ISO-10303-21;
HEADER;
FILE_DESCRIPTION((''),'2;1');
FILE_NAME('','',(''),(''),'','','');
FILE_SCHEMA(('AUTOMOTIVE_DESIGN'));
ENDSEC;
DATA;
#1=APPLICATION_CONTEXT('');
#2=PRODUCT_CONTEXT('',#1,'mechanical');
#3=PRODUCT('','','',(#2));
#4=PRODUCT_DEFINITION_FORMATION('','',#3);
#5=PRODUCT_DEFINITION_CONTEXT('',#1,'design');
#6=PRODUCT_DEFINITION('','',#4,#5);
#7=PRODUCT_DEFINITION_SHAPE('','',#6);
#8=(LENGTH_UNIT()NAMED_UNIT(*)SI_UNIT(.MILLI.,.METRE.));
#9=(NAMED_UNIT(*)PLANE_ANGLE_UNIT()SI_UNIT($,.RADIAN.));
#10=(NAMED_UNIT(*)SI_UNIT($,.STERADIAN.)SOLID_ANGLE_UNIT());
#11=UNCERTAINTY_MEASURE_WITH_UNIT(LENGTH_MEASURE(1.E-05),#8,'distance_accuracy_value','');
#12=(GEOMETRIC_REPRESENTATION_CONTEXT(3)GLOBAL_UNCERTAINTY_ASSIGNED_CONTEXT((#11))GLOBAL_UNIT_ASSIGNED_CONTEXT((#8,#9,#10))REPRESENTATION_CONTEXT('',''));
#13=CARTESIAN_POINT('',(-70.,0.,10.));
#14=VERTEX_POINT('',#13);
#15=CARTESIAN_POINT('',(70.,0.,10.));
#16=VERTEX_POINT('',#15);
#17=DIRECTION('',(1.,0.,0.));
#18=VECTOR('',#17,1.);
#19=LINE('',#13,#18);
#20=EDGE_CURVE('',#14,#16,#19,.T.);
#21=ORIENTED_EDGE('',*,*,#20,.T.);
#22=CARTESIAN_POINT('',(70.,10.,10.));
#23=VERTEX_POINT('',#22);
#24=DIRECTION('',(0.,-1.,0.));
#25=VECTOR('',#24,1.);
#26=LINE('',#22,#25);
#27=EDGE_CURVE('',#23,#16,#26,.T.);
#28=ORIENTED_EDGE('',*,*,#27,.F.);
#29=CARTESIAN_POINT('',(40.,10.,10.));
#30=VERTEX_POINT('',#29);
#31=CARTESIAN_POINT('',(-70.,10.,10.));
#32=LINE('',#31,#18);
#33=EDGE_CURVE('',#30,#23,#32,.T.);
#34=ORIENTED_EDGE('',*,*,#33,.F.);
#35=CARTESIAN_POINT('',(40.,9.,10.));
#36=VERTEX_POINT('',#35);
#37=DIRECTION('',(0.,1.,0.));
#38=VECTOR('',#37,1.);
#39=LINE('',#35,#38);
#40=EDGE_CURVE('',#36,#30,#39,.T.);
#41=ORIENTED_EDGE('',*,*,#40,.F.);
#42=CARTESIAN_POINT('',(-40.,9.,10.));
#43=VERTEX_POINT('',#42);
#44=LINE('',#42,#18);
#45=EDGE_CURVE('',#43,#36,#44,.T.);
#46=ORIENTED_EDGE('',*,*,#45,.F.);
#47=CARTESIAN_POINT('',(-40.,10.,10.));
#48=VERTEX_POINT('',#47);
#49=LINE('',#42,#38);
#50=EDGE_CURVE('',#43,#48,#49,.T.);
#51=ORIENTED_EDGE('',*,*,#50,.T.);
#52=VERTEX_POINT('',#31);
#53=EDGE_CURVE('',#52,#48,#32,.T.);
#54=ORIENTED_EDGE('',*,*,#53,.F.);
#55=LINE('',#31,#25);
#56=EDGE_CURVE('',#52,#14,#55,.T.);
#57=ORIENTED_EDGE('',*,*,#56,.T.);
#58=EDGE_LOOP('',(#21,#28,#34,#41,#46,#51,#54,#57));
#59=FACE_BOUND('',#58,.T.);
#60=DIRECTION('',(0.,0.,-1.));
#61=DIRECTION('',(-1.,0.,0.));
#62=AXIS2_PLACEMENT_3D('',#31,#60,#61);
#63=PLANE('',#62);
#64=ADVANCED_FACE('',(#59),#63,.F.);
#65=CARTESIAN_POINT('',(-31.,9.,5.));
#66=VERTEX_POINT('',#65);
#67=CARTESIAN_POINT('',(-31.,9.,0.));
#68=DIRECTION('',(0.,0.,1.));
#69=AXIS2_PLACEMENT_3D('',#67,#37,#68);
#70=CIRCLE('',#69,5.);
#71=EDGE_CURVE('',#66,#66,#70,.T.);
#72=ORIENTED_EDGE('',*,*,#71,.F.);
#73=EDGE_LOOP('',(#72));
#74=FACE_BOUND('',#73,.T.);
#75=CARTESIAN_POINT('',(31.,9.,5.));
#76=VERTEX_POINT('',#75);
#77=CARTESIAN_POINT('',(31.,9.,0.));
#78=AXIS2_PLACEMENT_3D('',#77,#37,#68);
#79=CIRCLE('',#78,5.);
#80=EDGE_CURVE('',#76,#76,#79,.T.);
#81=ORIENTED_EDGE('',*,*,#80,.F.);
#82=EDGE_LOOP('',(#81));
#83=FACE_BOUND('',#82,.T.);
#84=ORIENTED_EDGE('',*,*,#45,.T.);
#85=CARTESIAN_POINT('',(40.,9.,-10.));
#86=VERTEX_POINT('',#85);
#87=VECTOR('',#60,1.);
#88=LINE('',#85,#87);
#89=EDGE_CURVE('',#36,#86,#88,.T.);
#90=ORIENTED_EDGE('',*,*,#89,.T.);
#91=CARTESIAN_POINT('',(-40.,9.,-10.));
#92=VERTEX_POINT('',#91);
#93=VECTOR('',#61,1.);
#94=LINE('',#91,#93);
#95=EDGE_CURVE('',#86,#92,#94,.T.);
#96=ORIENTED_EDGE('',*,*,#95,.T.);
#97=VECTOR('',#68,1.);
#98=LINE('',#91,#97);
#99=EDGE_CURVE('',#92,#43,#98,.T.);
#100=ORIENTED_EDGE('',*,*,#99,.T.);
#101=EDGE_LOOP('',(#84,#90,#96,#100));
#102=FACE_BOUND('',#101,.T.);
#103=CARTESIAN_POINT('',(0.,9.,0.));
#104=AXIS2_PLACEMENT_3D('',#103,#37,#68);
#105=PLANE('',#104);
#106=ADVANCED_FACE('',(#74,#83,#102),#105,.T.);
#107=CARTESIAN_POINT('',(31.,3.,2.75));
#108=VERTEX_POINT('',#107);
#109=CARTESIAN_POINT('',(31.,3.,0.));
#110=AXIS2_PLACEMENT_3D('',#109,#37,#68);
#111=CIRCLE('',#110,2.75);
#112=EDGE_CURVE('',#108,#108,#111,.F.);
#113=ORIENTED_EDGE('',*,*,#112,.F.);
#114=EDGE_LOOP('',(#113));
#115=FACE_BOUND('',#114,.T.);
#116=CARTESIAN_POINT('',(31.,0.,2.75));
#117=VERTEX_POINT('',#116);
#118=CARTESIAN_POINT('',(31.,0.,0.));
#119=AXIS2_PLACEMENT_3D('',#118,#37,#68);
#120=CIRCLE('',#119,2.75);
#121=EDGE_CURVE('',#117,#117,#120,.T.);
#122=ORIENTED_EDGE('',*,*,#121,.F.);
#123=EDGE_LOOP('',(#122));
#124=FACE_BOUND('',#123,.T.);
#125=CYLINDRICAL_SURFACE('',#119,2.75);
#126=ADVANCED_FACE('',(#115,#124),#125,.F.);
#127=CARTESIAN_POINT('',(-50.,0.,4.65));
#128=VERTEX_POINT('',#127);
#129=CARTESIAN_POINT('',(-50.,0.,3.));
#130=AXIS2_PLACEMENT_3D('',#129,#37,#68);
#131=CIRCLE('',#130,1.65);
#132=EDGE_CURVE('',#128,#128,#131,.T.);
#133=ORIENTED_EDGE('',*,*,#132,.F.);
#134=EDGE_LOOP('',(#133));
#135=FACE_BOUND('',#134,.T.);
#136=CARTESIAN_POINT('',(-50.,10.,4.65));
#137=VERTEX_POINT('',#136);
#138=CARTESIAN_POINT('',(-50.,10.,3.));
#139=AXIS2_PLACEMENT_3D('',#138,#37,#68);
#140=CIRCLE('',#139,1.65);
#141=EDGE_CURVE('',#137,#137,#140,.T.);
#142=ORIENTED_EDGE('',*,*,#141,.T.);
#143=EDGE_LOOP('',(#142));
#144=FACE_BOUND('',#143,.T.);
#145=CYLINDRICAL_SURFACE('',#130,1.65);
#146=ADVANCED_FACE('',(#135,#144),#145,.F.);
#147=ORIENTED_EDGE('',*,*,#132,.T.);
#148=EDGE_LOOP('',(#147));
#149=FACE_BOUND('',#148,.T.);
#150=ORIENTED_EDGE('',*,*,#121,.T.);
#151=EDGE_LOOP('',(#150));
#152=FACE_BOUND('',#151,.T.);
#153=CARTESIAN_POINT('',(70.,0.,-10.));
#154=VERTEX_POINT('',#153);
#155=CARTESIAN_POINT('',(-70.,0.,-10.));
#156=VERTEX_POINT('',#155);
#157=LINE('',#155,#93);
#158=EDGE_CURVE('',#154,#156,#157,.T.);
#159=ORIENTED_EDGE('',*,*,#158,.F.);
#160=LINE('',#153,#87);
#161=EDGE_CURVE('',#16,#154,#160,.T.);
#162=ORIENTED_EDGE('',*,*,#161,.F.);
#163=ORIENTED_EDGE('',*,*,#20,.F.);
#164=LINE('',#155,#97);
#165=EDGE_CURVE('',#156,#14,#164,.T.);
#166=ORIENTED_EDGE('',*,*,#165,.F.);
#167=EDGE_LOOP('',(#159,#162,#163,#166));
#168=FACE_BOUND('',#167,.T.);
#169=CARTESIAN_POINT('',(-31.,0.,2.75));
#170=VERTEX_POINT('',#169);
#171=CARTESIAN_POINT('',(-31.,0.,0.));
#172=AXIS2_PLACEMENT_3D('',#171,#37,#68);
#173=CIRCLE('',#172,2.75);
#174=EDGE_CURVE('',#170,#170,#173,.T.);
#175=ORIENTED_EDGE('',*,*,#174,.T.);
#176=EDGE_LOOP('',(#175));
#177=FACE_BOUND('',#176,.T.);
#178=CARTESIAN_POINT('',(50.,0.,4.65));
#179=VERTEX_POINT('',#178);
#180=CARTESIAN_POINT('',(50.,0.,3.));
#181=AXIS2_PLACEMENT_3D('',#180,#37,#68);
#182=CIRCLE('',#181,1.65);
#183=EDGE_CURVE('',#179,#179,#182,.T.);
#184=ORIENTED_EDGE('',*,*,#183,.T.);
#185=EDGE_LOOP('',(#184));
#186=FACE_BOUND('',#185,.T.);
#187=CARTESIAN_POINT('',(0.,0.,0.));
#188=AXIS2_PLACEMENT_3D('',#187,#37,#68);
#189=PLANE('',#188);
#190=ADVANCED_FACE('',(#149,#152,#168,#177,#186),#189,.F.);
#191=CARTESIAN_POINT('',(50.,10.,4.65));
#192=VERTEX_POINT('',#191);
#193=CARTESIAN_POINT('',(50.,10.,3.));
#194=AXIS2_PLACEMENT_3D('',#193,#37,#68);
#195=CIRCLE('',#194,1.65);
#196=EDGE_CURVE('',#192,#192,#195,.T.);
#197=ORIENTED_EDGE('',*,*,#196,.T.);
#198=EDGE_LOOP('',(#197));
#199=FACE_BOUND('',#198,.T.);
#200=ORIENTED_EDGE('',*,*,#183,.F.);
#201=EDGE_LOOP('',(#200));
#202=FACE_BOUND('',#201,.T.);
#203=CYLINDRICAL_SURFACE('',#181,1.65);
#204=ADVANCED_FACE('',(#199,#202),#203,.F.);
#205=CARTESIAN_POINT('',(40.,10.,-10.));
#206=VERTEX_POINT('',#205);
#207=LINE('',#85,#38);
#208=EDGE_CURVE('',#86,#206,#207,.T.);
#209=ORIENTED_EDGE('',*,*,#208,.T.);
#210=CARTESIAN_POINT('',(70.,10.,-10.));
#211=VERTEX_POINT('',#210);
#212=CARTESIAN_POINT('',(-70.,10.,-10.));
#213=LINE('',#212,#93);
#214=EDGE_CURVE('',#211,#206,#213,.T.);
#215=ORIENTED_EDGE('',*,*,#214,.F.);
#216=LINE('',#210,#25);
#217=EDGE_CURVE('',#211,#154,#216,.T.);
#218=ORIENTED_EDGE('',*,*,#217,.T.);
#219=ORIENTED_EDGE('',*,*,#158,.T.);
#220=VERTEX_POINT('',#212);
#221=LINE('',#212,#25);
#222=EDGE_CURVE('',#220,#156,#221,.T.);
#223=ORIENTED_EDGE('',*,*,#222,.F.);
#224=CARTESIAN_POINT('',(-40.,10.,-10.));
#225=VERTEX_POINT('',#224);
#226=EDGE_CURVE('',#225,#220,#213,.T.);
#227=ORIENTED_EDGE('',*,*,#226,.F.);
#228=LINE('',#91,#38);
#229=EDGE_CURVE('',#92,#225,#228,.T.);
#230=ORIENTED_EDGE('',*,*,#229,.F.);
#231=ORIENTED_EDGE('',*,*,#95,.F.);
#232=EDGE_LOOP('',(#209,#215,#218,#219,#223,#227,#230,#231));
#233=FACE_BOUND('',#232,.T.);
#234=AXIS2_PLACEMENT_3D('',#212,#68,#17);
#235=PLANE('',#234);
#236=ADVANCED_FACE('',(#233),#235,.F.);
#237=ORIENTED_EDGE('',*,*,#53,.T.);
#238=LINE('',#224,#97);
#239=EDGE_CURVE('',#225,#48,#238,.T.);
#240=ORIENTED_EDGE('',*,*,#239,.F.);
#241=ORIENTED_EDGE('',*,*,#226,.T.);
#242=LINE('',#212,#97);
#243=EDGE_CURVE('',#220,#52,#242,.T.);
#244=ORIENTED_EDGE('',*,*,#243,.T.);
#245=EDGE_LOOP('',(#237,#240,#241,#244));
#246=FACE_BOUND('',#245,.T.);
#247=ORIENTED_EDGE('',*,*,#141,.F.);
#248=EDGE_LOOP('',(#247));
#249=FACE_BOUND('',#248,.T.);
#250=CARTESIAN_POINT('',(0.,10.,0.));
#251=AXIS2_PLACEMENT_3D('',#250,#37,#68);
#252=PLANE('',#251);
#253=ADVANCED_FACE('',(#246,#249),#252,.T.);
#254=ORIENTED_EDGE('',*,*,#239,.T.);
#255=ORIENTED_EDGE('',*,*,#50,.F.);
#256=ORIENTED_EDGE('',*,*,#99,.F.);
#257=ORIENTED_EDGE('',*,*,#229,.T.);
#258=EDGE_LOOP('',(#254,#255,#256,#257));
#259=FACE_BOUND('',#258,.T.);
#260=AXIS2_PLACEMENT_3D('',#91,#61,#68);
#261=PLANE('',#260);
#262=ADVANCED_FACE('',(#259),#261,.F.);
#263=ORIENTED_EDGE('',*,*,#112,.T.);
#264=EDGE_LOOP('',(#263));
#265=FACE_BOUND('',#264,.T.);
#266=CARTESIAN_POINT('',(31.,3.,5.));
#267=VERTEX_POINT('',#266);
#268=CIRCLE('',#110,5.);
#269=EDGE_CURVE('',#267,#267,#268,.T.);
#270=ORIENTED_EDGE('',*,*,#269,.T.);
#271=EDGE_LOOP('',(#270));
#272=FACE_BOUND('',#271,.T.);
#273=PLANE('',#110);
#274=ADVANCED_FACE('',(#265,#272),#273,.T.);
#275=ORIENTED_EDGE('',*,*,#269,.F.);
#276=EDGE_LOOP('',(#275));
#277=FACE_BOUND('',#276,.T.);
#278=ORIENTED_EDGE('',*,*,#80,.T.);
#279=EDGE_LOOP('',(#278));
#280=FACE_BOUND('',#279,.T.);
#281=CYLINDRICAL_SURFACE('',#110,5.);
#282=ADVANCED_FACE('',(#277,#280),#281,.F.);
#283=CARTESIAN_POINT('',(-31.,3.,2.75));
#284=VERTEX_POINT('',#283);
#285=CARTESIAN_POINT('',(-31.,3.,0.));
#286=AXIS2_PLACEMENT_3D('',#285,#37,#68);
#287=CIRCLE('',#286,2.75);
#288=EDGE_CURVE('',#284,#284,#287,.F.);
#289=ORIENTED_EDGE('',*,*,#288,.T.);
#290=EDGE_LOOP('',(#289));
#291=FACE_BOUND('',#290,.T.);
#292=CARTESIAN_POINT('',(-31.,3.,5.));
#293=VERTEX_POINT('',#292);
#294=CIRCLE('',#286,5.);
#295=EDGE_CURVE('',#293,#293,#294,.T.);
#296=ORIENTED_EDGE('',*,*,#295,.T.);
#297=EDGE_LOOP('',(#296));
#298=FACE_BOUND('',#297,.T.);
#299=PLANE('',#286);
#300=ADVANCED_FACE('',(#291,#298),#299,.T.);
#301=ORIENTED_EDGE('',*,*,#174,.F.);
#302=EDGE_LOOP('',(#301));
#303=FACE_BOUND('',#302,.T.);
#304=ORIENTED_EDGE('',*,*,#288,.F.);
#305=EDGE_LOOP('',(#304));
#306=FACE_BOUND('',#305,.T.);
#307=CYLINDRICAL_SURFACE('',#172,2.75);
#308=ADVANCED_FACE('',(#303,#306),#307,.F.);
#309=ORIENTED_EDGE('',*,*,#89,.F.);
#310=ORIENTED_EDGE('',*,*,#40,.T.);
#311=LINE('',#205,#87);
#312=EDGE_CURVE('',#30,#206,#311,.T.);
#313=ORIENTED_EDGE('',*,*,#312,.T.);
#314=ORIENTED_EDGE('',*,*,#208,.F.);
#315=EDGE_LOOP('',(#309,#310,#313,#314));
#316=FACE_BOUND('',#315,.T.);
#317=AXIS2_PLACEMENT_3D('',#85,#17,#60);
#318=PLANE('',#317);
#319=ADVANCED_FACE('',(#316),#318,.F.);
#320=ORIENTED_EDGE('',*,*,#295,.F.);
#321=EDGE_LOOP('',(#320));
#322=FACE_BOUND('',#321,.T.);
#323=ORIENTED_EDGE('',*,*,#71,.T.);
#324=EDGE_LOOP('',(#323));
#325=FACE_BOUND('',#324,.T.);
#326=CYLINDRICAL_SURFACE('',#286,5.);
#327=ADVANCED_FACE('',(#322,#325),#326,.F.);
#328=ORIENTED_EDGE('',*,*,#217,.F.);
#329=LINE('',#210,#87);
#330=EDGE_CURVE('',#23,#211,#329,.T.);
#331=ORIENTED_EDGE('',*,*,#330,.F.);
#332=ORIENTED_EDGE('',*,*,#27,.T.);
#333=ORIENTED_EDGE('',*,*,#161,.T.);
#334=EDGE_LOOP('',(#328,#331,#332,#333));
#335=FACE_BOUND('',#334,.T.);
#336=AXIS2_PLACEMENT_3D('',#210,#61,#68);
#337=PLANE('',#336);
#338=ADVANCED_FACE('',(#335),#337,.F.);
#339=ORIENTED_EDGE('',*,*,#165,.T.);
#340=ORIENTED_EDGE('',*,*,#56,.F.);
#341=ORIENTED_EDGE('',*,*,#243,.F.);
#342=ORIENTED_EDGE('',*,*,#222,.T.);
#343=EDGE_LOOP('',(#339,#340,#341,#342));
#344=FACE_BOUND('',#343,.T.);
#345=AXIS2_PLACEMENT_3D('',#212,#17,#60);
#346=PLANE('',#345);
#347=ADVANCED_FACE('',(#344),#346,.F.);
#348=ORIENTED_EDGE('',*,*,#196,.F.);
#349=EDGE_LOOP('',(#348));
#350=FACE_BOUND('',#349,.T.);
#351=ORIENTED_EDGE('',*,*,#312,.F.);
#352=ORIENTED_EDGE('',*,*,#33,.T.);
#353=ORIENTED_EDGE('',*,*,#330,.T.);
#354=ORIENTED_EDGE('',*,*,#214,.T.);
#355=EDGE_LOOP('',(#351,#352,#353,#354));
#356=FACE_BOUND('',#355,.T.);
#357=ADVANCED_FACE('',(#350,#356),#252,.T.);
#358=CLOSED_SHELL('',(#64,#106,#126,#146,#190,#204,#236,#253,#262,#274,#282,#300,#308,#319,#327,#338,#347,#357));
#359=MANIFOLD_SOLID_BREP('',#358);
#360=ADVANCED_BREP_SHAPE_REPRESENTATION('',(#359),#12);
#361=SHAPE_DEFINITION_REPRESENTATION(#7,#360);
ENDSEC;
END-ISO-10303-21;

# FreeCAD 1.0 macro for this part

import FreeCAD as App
import Part
import Sketcher

V = App.Vector
Q = App.Units.Quantity


def add_polygon(sketch, points):
    """Adds a closed chain of lines whose ends are joined by coincident constraints."""
    first, n = sketch.GeometryCount, len(points)
    for a, b in zip(points, points[1:] + points[:1]):
        sketch.addGeometry(Part.LineSegment(App.Vector(*a, 0), App.Vector(*b, 0)), False)
    for i in range(n):
        sketch.addConstraint(Sketcher.Constraint("Coincident", first + i, 2, first + (i + 1) % n, 1))

doc = App.newDocument("Part")
body = doc.addObject("PartDesign::Body", "Body")

sketch1 = body.newObject("Sketcher::SketchObject", "Sketch")
sketch1.AttachmentSupport = (doc.getObject("XZ_Plane"), [""])
sketch1.MapMode = "FlatFace"
add_polygon(sketch1, [(-70, -10), (-70, 10), (70, 10), (70, -10)])
sketch1.addConstraint([
    Sketcher.Constraint("Vertical", 0),
    Sketcher.Constraint("Horizontal", 1),
    Sketcher.Constraint("Vertical", 2),
    Sketcher.Constraint("Horizontal", 3),
    Sketcher.Constraint("Symmetric", 0, 2, 2, 2, -1, 1),
    Sketcher.Constraint("DistanceX", 1, 1, 1, 2, Q("140 mm")),
    Sketcher.Constraint("DistanceY", 0, 1, 0, 2, Q("20 mm")),
])
pad1 = body.newObject("PartDesign::Pad", "Pad")
pad1.Profile = sketch1
pad1.Length = 10
pad1.Reversed = True

sketch2 = body.newObject("Sketcher::SketchObject", "Sketch001")
sketch2.AttachmentSupport = (doc.getObject("XZ_Plane"), [""])
sketch2.MapMode = "FlatFace"
sketch2.AttachmentOffset = App.Placement(V(0, 0, -10), App.Rotation())
add_polygon(sketch2, [(-40, -10), (-40, 10), (40, 10), (40, -10)])
sketch2.addConstraint([
    Sketcher.Constraint("Vertical", 0),
    Sketcher.Constraint("Horizontal", 1),
    Sketcher.Constraint("Vertical", 2),
    Sketcher.Constraint("Horizontal", 3),
    Sketcher.Constraint("Symmetric", 0, 2, 2, 2, -1, 1),
    Sketcher.Constraint("DistanceX", 1, 1, 1, 2, Q("80 mm")),
    Sketcher.Constraint("DistanceY", 0, 1, 0, 2, Q("20 mm")),
])
pocket1 = body.newObject("PartDesign::Pocket", "Pocket")
pocket1.Profile = sketch2
pocket1.Length = 1
pocket1.Reversed = True

sketch3 = body.newObject("Sketcher::SketchObject", "Sketch002")
sketch3.AttachmentSupport = (doc.getObject("XZ_Plane"), [""])
sketch3.MapMode = "FlatFace"
sketch3.AttachmentOffset = App.Placement(V(0, 0, -9), App.Rotation())
sketch3.addGeometry([
    Part.Circle(V(31, 0, 0), V(0, 0, 1), 2.8),
    Part.Circle(V(-31, 0, 0), V(0, 0, 1), 2.8),
], False)
sketch3.addConstraint([
    Sketcher.Constraint("Equal", 0, 1),
    Sketcher.Constraint("Symmetric", 0, 3, 1, 3, -1, 1),
    Sketcher.Constraint("PointOnObject", 0, 3, -1),
    Sketcher.Constraint("Diameter", 0, Q("5.5 mm")),
    Sketcher.Constraint("DistanceX", -1, 1, 0, 3, Q("31 mm")),
])
pocket2 = body.newObject("PartDesign::Pocket", "Pocket001")
pocket2.Profile = sketch3
pocket2.Length = 9
pocket2.Reversed = True

sketch4 = body.newObject("Sketcher::SketchObject", "Sketch003")
sketch4.AttachmentSupport = (doc.getObject("XZ_Plane"), [""])
sketch4.MapMode = "FlatFace"
sketch4.AttachmentOffset = App.Placement(V(0, 0, -9), App.Rotation())
sketch4.addGeometry([
    Part.Circle(V(31, 0, 0), V(0, 0, 1), 5),
    Part.Circle(V(-31, 0, 0), V(0, 0, 1), 5),
], False)
sketch4.addConstraint([
    Sketcher.Constraint("Equal", 0, 1),
    Sketcher.Constraint("Symmetric", 0, 3, 1, 3, -1, 1),
    Sketcher.Constraint("PointOnObject", 0, 3, -1),
    Sketcher.Constraint("Diameter", 0, Q("10 mm")),
    Sketcher.Constraint("DistanceX", -1, 1, 0, 3, Q("31 mm")),
])
pocket3 = body.newObject("PartDesign::Pocket", "Pocket002")
pocket3.Profile = sketch4
pocket3.Length = 6
pocket3.Reversed = True

sketch5 = body.newObject("Sketcher::SketchObject", "Sketch004")
sketch5.AttachmentSupport = (doc.getObject("XZ_Plane"), [""])
sketch5.MapMode = "FlatFace"
sketch5.AttachmentOffset = App.Placement(V(0, 0, -10), App.Rotation())
sketch5.addGeometry([
    Part.Circle(V(-50, 3, 0), V(0, 0, 1), 1.6),
    Part.Circle(V(50, 3, 0), V(0, 0, 1), 1.6),
], False)
sketch5.addConstraint([
    Sketcher.Constraint("Equal", 0, 1),
    Sketcher.Constraint("Symmetric", 0, 3, 1, 3, -2),
    Sketcher.Constraint("Diameter", 0, Q("3.3 mm")),
    Sketcher.Constraint("DistanceX", 0, 3, -1, 1, Q("50 mm")),
    Sketcher.Constraint("DistanceY", -1, 1, 0, 3, Q("3 mm")),
])
pocket4 = body.newObject("PartDesign::Pocket", "Pocket003")
pocket4.Profile = sketch5
pocket4.Length = 10
pocket4.Reversed = True

doc.recompute()
